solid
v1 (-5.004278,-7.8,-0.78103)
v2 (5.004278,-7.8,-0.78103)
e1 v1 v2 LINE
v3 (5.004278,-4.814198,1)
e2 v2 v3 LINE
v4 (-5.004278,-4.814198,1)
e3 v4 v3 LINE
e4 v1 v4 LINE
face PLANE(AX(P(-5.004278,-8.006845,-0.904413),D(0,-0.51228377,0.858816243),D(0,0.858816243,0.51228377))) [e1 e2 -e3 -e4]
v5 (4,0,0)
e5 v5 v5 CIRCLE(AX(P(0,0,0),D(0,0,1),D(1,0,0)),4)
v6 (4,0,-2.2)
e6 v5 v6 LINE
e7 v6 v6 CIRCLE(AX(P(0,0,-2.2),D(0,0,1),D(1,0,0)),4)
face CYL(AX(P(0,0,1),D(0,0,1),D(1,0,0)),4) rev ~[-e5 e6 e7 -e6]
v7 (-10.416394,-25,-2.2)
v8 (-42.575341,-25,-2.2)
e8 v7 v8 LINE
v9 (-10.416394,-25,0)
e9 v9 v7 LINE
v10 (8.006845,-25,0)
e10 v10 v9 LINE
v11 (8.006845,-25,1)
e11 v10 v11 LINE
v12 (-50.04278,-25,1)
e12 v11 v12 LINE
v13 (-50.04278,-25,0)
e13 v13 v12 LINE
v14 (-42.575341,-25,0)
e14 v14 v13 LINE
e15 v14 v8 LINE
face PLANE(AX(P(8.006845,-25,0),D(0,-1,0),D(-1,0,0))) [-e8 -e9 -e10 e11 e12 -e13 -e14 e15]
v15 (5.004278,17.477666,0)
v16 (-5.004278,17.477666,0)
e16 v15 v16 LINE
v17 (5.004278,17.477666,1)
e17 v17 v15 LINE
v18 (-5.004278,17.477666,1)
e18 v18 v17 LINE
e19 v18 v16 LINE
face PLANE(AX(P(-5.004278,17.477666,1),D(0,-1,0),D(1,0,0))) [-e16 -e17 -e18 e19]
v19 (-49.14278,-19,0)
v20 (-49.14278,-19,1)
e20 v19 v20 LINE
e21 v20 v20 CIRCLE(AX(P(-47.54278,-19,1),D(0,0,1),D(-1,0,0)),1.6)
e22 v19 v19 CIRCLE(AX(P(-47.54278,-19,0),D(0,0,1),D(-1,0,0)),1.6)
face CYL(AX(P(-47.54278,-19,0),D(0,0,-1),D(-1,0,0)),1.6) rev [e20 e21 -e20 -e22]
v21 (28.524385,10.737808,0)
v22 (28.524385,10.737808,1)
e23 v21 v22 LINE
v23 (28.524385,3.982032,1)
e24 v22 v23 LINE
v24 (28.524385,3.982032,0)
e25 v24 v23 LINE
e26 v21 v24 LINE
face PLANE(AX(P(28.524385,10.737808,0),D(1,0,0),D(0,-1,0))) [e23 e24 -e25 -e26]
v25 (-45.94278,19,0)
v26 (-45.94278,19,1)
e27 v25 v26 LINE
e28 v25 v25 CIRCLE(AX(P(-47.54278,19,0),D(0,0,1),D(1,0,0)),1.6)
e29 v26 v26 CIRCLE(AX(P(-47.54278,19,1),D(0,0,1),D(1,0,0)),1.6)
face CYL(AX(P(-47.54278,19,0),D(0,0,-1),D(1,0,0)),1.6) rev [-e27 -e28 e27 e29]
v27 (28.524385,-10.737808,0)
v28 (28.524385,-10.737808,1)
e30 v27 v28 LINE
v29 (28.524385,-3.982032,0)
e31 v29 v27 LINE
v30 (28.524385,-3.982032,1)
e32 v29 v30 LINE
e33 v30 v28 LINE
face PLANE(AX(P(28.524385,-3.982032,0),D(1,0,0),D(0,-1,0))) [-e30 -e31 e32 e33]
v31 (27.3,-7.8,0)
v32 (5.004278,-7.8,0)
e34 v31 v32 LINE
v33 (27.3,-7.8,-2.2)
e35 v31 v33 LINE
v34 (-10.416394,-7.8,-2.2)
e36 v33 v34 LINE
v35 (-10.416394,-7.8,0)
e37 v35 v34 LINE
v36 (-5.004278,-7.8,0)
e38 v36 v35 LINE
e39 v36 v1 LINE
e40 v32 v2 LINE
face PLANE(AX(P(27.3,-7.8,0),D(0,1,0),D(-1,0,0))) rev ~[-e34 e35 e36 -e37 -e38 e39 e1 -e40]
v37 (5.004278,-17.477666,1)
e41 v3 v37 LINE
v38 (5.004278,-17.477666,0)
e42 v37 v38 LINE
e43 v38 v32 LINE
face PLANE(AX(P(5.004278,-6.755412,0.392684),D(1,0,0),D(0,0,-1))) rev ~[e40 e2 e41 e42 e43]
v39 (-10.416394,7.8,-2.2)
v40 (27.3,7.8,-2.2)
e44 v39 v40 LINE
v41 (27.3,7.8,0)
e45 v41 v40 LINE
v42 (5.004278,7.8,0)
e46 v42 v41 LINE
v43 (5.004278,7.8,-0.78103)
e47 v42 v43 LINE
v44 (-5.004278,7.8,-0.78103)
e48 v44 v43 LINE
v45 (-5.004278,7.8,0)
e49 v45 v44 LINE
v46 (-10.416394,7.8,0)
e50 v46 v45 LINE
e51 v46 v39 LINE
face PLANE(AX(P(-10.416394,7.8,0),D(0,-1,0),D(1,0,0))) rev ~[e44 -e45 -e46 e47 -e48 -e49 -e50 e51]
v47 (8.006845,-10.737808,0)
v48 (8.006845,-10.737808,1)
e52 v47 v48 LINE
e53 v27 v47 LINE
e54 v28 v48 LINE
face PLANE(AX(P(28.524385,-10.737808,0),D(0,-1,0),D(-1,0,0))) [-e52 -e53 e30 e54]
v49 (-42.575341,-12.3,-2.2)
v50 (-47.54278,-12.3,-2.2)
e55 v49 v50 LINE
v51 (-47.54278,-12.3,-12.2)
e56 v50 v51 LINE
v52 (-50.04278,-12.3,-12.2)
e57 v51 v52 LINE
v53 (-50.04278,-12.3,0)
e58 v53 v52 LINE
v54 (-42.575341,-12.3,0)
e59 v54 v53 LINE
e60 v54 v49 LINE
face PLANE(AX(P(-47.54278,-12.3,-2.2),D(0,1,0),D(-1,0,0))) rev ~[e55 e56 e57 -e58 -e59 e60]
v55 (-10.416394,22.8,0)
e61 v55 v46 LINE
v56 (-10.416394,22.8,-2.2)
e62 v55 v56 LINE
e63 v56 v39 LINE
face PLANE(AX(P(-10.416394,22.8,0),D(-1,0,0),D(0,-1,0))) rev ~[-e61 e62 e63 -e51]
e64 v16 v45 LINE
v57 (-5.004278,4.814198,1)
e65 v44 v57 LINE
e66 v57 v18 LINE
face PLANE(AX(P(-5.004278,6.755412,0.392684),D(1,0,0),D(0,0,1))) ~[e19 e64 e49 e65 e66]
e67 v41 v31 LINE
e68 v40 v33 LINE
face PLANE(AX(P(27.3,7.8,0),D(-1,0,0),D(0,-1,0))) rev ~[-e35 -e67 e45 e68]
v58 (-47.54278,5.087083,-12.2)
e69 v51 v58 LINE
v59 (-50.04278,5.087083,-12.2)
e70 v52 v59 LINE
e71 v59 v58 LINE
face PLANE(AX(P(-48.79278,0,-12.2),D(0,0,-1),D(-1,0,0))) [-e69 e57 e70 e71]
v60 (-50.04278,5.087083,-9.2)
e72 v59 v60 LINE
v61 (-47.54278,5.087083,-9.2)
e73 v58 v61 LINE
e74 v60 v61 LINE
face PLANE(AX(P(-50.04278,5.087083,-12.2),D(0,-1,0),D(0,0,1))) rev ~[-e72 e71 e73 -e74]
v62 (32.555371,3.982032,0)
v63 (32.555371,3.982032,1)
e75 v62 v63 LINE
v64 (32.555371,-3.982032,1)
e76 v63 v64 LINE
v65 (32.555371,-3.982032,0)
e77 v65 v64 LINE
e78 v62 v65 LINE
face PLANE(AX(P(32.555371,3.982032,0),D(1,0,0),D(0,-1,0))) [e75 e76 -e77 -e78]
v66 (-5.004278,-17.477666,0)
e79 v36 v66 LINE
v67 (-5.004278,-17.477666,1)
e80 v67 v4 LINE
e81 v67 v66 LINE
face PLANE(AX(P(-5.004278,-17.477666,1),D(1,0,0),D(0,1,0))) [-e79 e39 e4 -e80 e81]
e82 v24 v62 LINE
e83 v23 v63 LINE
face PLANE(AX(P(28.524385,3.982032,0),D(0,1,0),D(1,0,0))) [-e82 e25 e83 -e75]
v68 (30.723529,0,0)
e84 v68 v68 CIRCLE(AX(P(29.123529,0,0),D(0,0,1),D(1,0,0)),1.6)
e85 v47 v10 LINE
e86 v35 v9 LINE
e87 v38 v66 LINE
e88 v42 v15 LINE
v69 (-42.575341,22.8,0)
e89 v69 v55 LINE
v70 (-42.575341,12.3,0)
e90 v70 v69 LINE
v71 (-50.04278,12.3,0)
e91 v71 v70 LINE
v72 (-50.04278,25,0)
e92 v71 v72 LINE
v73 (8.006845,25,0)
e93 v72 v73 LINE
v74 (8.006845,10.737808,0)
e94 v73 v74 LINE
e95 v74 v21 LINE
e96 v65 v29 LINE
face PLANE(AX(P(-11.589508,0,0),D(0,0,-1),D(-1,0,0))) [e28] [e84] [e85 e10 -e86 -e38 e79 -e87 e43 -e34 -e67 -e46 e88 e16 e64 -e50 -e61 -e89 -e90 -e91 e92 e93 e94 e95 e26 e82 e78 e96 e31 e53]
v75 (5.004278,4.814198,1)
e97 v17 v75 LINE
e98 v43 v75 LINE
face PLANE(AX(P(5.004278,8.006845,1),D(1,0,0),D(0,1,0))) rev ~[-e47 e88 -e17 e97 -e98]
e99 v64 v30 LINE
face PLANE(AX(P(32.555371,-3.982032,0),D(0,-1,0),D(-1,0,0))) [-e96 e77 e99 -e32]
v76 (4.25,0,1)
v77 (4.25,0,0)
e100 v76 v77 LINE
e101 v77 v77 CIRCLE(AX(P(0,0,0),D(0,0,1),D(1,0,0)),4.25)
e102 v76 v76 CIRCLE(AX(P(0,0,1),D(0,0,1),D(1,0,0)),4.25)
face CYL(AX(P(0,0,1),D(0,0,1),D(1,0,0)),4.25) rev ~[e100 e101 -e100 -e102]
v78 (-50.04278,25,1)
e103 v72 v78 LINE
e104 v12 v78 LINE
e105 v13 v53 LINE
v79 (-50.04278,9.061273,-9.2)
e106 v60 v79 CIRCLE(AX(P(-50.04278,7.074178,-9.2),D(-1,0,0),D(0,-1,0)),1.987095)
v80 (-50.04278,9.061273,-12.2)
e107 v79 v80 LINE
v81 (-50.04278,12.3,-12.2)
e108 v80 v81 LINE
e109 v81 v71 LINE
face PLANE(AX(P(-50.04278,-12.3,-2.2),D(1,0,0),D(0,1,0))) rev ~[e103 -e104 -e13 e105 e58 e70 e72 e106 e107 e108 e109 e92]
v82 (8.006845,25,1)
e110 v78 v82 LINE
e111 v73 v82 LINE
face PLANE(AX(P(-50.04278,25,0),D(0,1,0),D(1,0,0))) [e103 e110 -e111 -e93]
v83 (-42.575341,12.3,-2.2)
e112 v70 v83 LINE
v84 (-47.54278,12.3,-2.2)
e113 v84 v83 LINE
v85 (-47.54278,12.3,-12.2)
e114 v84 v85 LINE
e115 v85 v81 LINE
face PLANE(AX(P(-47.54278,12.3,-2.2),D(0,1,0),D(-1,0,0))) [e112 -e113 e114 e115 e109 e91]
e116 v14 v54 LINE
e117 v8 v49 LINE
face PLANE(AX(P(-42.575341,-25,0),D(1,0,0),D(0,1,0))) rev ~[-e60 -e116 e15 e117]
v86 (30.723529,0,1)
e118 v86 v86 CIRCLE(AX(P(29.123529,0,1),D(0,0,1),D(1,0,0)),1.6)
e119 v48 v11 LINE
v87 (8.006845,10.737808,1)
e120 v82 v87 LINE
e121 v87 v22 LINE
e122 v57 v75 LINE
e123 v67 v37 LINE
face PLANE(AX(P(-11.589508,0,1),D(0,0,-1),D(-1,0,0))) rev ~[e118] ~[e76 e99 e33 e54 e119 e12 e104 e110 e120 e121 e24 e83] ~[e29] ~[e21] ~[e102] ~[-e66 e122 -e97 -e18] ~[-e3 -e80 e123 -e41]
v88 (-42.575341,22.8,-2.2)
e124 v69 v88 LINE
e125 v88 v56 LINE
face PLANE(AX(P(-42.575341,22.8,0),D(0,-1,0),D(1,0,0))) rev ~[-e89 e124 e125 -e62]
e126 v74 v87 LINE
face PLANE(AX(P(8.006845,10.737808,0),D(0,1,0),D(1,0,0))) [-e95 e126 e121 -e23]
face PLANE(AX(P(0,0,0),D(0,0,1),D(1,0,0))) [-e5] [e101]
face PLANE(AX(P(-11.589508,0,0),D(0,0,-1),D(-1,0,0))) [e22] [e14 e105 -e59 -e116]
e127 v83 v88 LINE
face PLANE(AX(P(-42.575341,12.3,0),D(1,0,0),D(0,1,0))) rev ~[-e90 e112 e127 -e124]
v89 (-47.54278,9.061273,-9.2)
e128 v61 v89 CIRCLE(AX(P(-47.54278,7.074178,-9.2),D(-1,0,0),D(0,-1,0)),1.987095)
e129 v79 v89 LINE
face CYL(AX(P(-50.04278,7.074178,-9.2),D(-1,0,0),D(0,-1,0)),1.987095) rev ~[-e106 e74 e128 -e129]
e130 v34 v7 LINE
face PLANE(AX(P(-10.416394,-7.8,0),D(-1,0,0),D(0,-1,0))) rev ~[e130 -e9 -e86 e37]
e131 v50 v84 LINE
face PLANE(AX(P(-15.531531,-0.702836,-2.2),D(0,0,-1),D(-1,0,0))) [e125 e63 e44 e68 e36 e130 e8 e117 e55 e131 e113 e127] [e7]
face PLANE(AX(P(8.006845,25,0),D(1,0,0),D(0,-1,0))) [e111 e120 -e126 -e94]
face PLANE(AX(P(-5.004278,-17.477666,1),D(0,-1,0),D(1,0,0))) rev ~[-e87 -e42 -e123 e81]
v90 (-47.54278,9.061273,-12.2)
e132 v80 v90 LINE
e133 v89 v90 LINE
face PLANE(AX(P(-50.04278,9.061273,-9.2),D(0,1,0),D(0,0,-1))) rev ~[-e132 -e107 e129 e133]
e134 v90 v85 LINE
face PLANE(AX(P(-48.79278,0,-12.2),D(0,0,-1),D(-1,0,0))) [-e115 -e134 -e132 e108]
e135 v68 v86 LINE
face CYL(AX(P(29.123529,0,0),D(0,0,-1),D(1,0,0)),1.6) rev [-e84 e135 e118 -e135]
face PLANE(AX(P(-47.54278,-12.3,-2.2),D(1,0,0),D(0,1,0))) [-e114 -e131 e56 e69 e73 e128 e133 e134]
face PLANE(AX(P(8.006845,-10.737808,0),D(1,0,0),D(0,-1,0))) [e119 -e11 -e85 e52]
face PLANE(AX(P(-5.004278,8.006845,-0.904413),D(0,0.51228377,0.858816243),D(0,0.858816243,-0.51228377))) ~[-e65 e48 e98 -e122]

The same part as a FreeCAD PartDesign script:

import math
import FreeCAD as App
import Part
import Sketcher
from FreeCAD import Vector
Q = App.Units.Quantity

doc = App.newDocument("Part")
body = doc.addObject("PartDesign::Body", "Body")

# Sketch on XY plane
sketch1 = body.newObject("Sketcher::SketchObject", "Sketch")
sketch1.AttachmentSupport = (doc.getObject("XY_Plane"), [""])
sketch1.MapMode = "FlatFace"
sketch1.addGeometry([
    Part.LineSegment(Vector(8, 25, 0), Vector(-50, 25, 0)),  # 0
    Part.LineSegment(Vector(-50, 25, 0), Vector(-50, -25, 0)),  # 1
    Part.LineSegment(Vector(-50, -25, 0), Vector(8, -25, 0)),  # 2
    Part.LineSegment(Vector(8, -25, 0), Vector(8, -10.7, 0)),  # 3
    Part.LineSegment(Vector(8, -10.7, 0), Vector(28.5, -10.7, 0)),  # 4
    Part.LineSegment(Vector(28.5, -10.7, 0), Vector(28.5, -4, 0)),  # 5
    Part.LineSegment(Vector(28.5, -4, 0), Vector(32.6, -4, 0)),  # 6
    Part.LineSegment(Vector(32.6, -4, 0), Vector(32.6, 4, 0)),  # 7
    Part.LineSegment(Vector(32.6, 4, 0), Vector(28.5, 4, 0)),  # 8
    Part.LineSegment(Vector(28.5, 4, 0), Vector(28.5, 10.7, 0)),  # 9
    Part.LineSegment(Vector(28.5, 10.7, 0), Vector(8, 10.7, 0)),  # 10
    Part.LineSegment(Vector(8, 10.7, 0), Vector(8, 25, 0)),  # 11
    Part.Circle(Vector(-47.5, -19, 0), Vector(0, 0, 1), 1.6),  # 12
    Part.Circle(Vector(29.1, 0, 0), Vector(0, 0, 1), 1.6),  # 13
    Part.Circle(Vector(-47.5, 19, 0), Vector(0, 0, 1), 1.6),  # 14
], False)
sketch1.addConstraint([
    Sketcher.Constraint("Coincident", 0, 2, 1, 1),
    Sketcher.Constraint("Coincident", 1, 2, 2, 1),
    Sketcher.Constraint("Coincident", 2, 2, 3, 1),
    Sketcher.Constraint("Coincident", 3, 2, 4, 1),
    Sketcher.Constraint("Coincident", 4, 2, 5, 1),
    Sketcher.Constraint("Coincident", 5, 2, 6, 1),
    Sketcher.Constraint("Coincident", 6, 2, 7, 1),
    Sketcher.Constraint("Coincident", 7, 2, 8, 1),
    Sketcher.Constraint("Coincident", 8, 2, 9, 1),
    Sketcher.Constraint("Coincident", 9, 2, 10, 1),
    Sketcher.Constraint("Coincident", 10, 2, 11, 1),
    Sketcher.Constraint("Coincident", 11, 2, 0, 1),
    Sketcher.Constraint("Horizontal", 0),
    Sketcher.Constraint("Vertical", 1),
    Sketcher.Constraint("Horizontal", 2),
    Sketcher.Constraint("Vertical", 3),
    Sketcher.Constraint("Horizontal", 4),
    Sketcher.Constraint("Vertical", 5),
    Sketcher.Constraint("Horizontal", 6),
    Sketcher.Constraint("Vertical", 7),
    Sketcher.Constraint("Horizontal", 8),
    Sketcher.Constraint("Vertical", 9),
    Sketcher.Constraint("Horizontal", 10),
    Sketcher.Constraint("Vertical", 11),
    Sketcher.Constraint("Equal", 12, 13),
    Sketcher.Constraint("Equal", 13, 14),
    Sketcher.Constraint("Symmetric", 12, 3, 14, 3, -1),
    Sketcher.Constraint("Symmetric", 5, 2, 8, 2, -1),
    Sketcher.Constraint("Symmetric", 3, 2, 10, 2, -1),
    Sketcher.Constraint("PointOnObject", 13, 3, -1),
    Sketcher.Constraint("Equal", 3, 11),
    Sketcher.Constraint("Diameter", 12, Q("3.2 mm")),
    Sketcher.Constraint("DistanceY", 1, 2, 1, 1, Q("50 mm")),
    Sketcher.Constraint("DistanceY", 12, 3, -1, 1, Q("19 mm")),
    Sketcher.Constraint("DistanceX", 0, 2, 14, 3, Q("2.5 mm")),
    Sketcher.Constraint("DistanceX", 4, 1, 4, 2, Q("20.51754 mm")),
    Sketcher.Constraint("DistanceX", 0, 2, 0, 1, Q("58.049625 mm")),
    Sketcher.Constraint("DistanceX", 6, 1, 6, 2, Q("4.030987 mm")),
    Sketcher.Constraint("DistanceY", 3, 1, 3, 2, Q("14.262192 mm")),
    Sketcher.Constraint("DistanceY", 5, 1, 5, 2, Q("6.755775 mm")),
    Sketcher.Constraint("DistanceX", 12, 3, -1, 1, Q("47.54278 mm")),
    Sketcher.Constraint("DistanceX", -1, 1, 13, 3, Q("29.123529 mm")),
])
pad1 = body.newObject("PartDesign::Pad", "Pad")
pad1.Profile = sketch1
pad1.Length = 1

# Sketch on XY plane
sketch2 = body.newObject("Sketcher::SketchObject", "Sketch001")
sketch2.AttachmentSupport = (doc.getObject("XY_Plane"), [""])
sketch2.MapMode = "FlatFace"
sketch2.addGeometry([
    Part.LineSegment(Vector(27, 8, 0), Vector(27, -8, 0)),  # 0
    Part.LineSegment(Vector(27, -8, 0), Vector(-10, -8, 0)),  # 1
    Part.LineSegment(Vector(-10, -8, 0), Vector(-10, -25, 0)),  # 2
    Part.LineSegment(Vector(-10, -25, 0), Vector(-43, -25, 0)),  # 3
    Part.LineSegment(Vector(-43, -25, 0), Vector(-43, -12, 0)),  # 4
    Part.LineSegment(Vector(-43, -12, 0), Vector(-50, -12, 0)),  # 5
    Part.LineSegment(Vector(-50, -12, 0), Vector(-50, 12, 0)),  # 6
    Part.LineSegment(Vector(-50, 12, 0), Vector(-43, 12, 0)),  # 7
    Part.LineSegment(Vector(-43, 12, 0), Vector(-43, 23, 0)),  # 8
    Part.LineSegment(Vector(-43, 23, 0), Vector(-10, 23, 0)),  # 9
    Part.LineSegment(Vector(-10, 23, 0), Vector(-10, 8, 0)),  # 10
    Part.LineSegment(Vector(-10, 8, 0), Vector(27, 8, 0)),  # 11
], False)
sketch2.addConstraint([
    Sketcher.Constraint("Coincident", 0, 2, 1, 1),
    Sketcher.Constraint("Coincident", 1, 2, 2, 1),
    Sketcher.Constraint("Coincident", 2, 2, 3, 1),
    Sketcher.Constraint("Coincident", 3, 2, 4, 1),
    Sketcher.Constraint("Coincident", 4, 2, 5, 1),
    Sketcher.Constraint("Coincident", 5, 2, 6, 1),
    Sketcher.Constraint("Coincident", 6, 2, 7, 1),
    Sketcher.Constraint("Coincident", 7, 2, 8, 1),
    Sketcher.Constraint("Coincident", 8, 2, 9, 1),
    Sketcher.Constraint("Coincident", 9, 2, 10, 1),
    Sketcher.Constraint("Coincident", 10, 2, 11, 1),
    Sketcher.Constraint("Coincident", 11, 2, 0, 1),
    Sketcher.Constraint("Vertical", 0),
    Sketcher.Constraint("Horizontal", 1),
    Sketcher.Constraint("Vertical", 2),
    Sketcher.Constraint("Horizontal", 3),
    Sketcher.Constraint("Vertical", 4),
    Sketcher.Constraint("Horizontal", 5),
    Sketcher.Constraint("Vertical", 6),
    Sketcher.Constraint("Horizontal", 7),
    Sketcher.Constraint("Vertical", 8),
    Sketcher.Constraint("Horizontal", 9),
    Sketcher.Constraint("Vertical", 10),
    Sketcher.Constraint("Horizontal", 11),
    Sketcher.Constraint("Symmetric", 4, 2, 7, 2, -1),
    Sketcher.Constraint("Symmetric", 1, 2, 10, 2, -1),
    Sketcher.Constraint("DistanceY", 10, 2, 10, 1, Q("15 mm")),
    Sketcher.Constraint("DistanceY", 0, 2, 0, 1, Q("15.6 mm")),
    Sketcher.Constraint("DistanceY", 2, 2, 2, 1, Q("17.2 mm")),
    Sketcher.Constraint("DistanceY", 4, 1, 4, 2, Q("12.7 mm")),
    Sketcher.Constraint("DistanceX", -1, 1, 0, 2, Q("27.3 mm")),
    Sketcher.Constraint("DistanceX", 5, 2, 5, 1, Q("7.467439 mm")),
    Sketcher.Constraint("DistanceX", 1, 2, 1, 1, Q("37.716394 mm")),
    Sketcher.Constraint("DistanceX", 3, 2, 3, 1, Q("32.158948 mm")),
])
pad2 = body.newObject("PartDesign::Pad", "Pad001")
pad2.Profile = sketch2
pad2.Length = 2.2
pad2.Reversed = True

# Sketch on XY plane
sketch3 = body.newObject("Sketcher::SketchObject", "Sketch002")
sketch3.AttachmentSupport = (doc.getObject("XY_Plane"), [""])
sketch3.MapMode = "FlatFace"
sketch3.AttachmentOffset = App.Placement(Vector(0, 0, 1), App.Rotation())
sketch3.addGeometry([
    Part.Circle(Vector(0, 0, 0), Vector(0, 0, 1), 4),  # 0
    Part.LineSegment(Vector(-5, -8, 0), Vector(-5, -17.5, 0)),  # 1
    Part.LineSegment(Vector(-5, -17.5, 0), Vector(5, -17.5, 0)),  # 2
    Part.LineSegment(Vector(5, -17.5, 0), Vector(5, -8, 0)),  # 3
    Part.LineSegment(Vector(5, -8, 0), Vector(-5, -8, 0)),  # 4
    Part.LineSegment(Vector(-5, 17.5, 0), Vector(-5, 8, 0)),  # 5
    Part.LineSegment(Vector(-5, 8, 0), Vector(5, 8, 0)),  # 6
    Part.LineSegment(Vector(5, 8, 0), Vector(5, 17.5, 0)),  # 7
    Part.LineSegment(Vector(5, 17.5, 0), Vector(-5, 17.5, 0)),  # 8
], False)
sketch3.addConstraint([
    Sketcher.Constraint("Coincident", 1, 2, 2, 1),
    Sketcher.Constraint("Coincident", 2, 2, 3, 1),
    Sketcher.Constraint("Coincident", 3, 2, 4, 1),
    Sketcher.Constraint("Coincident", 4, 2, 1, 1),
    Sketcher.Constraint("Coincident", 5, 2, 6, 1),
    Sketcher.Constraint("Coincident", 6, 2, 7, 1),
    Sketcher.Constraint("Coincident", 7, 2, 8, 1),
    Sketcher.Constraint("Coincident", 8, 2, 5, 1),
    Sketcher.Constraint("Vertical", 1),
    Sketcher.Constraint("Horizontal", 2),
    Sketcher.Constraint("Vertical", 3),
    Sketcher.Constraint("Horizontal", 4),
    Sketcher.Constraint("Vertical", 5),
    Sketcher.Constraint("Horizontal", 6),
    Sketcher.Constraint("Vertical", 7),
    Sketcher.Constraint("Horizontal", 8),
    Sketcher.Constraint("Coincident", 0, 3, -1, 1),
    Sketcher.Constraint("Symmetric", 3, 2, 5, 2, -1, 1),
    Sketcher.Constraint("Symmetric", 1, 2, 7, 2, -1, 1),
    Sketcher.Constraint("Vertical", 4, 2, 5, 2),
    Sketcher.Constraint("Diameter", 0, Q("8 mm")),
    Sketcher.Constraint("DistanceY", 1, 2, 1, 1, Q("9.470822 mm")),
    Sketcher.Constraint("DistanceX", 2, 1, 2, 2, Q("10.008556 mm")),
    Sketcher.Constraint("DistanceY", 4, 2, 5, 2, Q("16.01369 mm")),
])
pocket1 = body.newObject("PartDesign::Pocket", "Pocket")
pocket1.Profile = sketch3
pocket1.Type = "ThroughAll"

# Sketch on YZ plane
sketch4 = body.newObject("Sketcher::SketchObject", "Sketch003")
sketch4.AttachmentSupport = (doc.getObject("YZ_Plane"), [""])
sketch4.MapMode = "FlatFace"
sketch4.AttachmentOffset = App.Placement(Vector(0, 0, -5.004278), App.Rotation())
sketch4.addGeometry([
    Part.LineSegment(Vector(-8, -0.9, 0), Vector(-4.8, 1, 0)),
    Part.LineSegment(Vector(-4.8, 1, 0), Vector(-8, 1, 0)),
    Part.LineSegment(Vector(-8, 1, 0), Vector(-8, -0.9, 0)),
], False)
sketch4.addConstraint([
    Sketcher.Constraint("Coincident", 0, 2, 1, 1),
    Sketcher.Constraint("Coincident", 1, 2, 2, 1),
    Sketcher.Constraint("Coincident", 2, 2, 0, 1),
    Sketcher.Constraint("Horizontal", 1),
    Sketcher.Constraint("Vertical", 2),
    Sketcher.Constraint("DistanceY", -1, 1, 0, 2, Q("1 mm")),
    Sketcher.Constraint("DistanceX", 0, 2, -1, 1, Q("4.814198 mm")),
    Sketcher.Constraint("DistanceX", 1, 2, 1, 1, Q("3.192647 mm")),
    Sketcher.Constraint("DistanceY", 2, 2, 2, 1, Q("1.904413 mm")),
])
pocket2 = body.newObject("PartDesign::Pocket", "Pocket001")
pocket2.Profile = sketch4
pocket2.Length = 10.008556
pocket2.Reversed = True
doc.recompute()

mirrored = body.newObject("PartDesign::Mirrored", "Mirrored")
mirrored.Originals = [pocket2]
mirrored.MirrorPlane = (doc.getObject("XZ_Plane"), [""])
body.Tip = mirrored

# Sketch on XY plane
sketch5 = body.newObject("Sketcher::SketchObject", "Sketch004")
sketch5.AttachmentSupport = (doc.getObject("XY_Plane"), [""])
sketch5.MapMode = "FlatFace"
sketch5.AttachmentOffset = App.Placement(Vector(0, 0, -2.2), App.Rotation())
sketch5.addGeometry([
    Part.LineSegment(Vector(-47.5, 12.3, 0), Vector(-47.5, -12.3, 0)),
    Part.LineSegment(Vector(-47.5, -12.3, 0), Vector(-50, -12.3, 0)),
    Part.LineSegment(Vector(-50, -12.3, 0), Vector(-50, 12.3, 0)),
    Part.LineSegment(Vector(-50, 12.3, 0), Vector(-47.5, 12.3, 0)),
], False)
sketch5.addConstraint([
    Sketcher.Constraint("Coincident", 0, 2, 1, 1),
    Sketcher.Constraint("Coincident", 1, 2, 2, 1),
    Sketcher.Constraint("Coincident", 2, 2, 3, 1),
    Sketcher.Constraint("Coincident", 3, 2, 0, 1),
    Sketcher.Constraint("Vertical", 0),
    Sketcher.Constraint("Horizontal", 1),
    Sketcher.Constraint("Vertical", 2),
    Sketcher.Constraint("Horizontal", 3),
    Sketcher.Constraint("DistanceX", 1, 2, 1, 1, Q("2.5 mm")),
    Sketcher.Constraint("DistanceY", 0, 2, 0, 1, Q("24.6 mm")),
    Sketcher.Constraint("DistanceY", 0, 2, -1, 1, Q("12.3 mm")),
    Sketcher.Constraint("DistanceX", 0, 2, -1, 1, Q("47.54278 mm")),
])
pad3 = body.newObject("PartDesign::Pad", "Pad002")
pad3.Profile = sketch5
pad3.Length = 10
pad3.Reversed = True

# Sketch on YZ plane
sketch6 = body.newObject("Sketcher::SketchObject", "Sketch005")
sketch6.AttachmentSupport = (doc.getObject("YZ_Plane"), [""])
sketch6.MapMode = "FlatFace"
sketch6.AttachmentOffset = App.Placement(Vector(0, 0, -50.04278), App.Rotation())
sketch6.addGeometry([
    Part.LineSegment(Vector(9.1, -9.2, 0), Vector(9.1, -12.2, 0)),
    Part.LineSegment(Vector(9.1, -12.2, 0), Vector(5.1, -12.2, 0)),
    Part.LineSegment(Vector(5.1, -12.2, 0), Vector(5.1, -9.2, 0)),
    Part.ArcOfCircle(Part.Circle(Vector(7.1, -9.2, 0), Vector(0, 0, 1), 2), math.radians(0), math.radians(180)),
], False)
sketch6.addConstraint([
    Sketcher.Constraint("Coincident", 0, 2, 1, 1),
    Sketcher.Constraint("Coincident", 1, 2, 2, 1),
    Sketcher.Constraint("Tangent", 2, 2, 3, 2),
    Sketcher.Constraint("Tangent", 3, 1, 0, 1),
    Sketcher.Constraint("Vertical", 0),
    Sketcher.Constraint("Horizontal", 1),
    Sketcher.Constraint("Vertical", 2),
    Sketcher.Constraint("DistanceY", 0, 2, 0, 1, Q("3 mm")),
    Sketcher.Constraint("DistanceY", 3, 3, -1, 1, Q("9.2 mm")),
    Sketcher.Constraint("Radius", 3, Q("1.987095 mm")),
    Sketcher.Constraint("DistanceX", -1, 1, 3, 3, Q("7.074178 mm")),
])
pocket3 = body.newObject("PartDesign::Pocket", "Pocket002")
pocket3.Profile = sketch6
pocket3.Type = "UpToFirst"
pocket3.Reversed = True

# Sketch on XY plane
sketch7 = body.newObject("Sketcher::SketchObject", "Sketch006")
sketch7.AttachmentSupport = (doc.getObject("XY_Plane"), [""])
sketch7.MapMode = "FlatFace"
sketch7.AttachmentOffset = App.Placement(Vector(0, 0, 1), App.Rotation())
sketch7.addGeometry(Part.Circle(Vector(0, 0, 0), Vector(0, 0, 1), 4.2), False)
sketch7.addConstraint([
    Sketcher.Constraint("Coincident", 0, 3, -1, 1),
    Sketcher.Constraint("Diameter", 0, Q("8.5 mm")),
])
pocket4 = body.newObject("PartDesign::Pocket", "Pocket003")
pocket4.Profile = sketch7
pocket4.Length = 1

doc.recompute()
